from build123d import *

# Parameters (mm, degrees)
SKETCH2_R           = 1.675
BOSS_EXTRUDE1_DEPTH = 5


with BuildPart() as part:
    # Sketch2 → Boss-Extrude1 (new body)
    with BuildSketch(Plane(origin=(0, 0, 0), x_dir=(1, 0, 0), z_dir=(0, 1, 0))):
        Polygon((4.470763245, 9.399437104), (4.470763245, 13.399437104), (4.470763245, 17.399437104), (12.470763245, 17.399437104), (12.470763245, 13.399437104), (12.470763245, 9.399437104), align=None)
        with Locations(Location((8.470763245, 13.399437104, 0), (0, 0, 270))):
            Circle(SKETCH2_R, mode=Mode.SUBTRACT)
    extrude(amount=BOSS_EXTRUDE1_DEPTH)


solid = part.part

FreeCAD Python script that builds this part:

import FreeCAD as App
import Part
import Sketcher
from FreeCAD import Vector


def add_polygon(sketch, points):
    """Adds a closed chain of lines whose ends are joined by coincident constraints."""
    first, n = sketch.GeometryCount, len(points)
    for a, b in zip(points, points[1:] + points[:1]):
        sketch.addGeometry(Part.LineSegment(App.Vector(*a, 0), App.Vector(*b, 0)), False)
    for i in range(n):
        sketch.addConstraint(Sketcher.Constraint("Coincident", first + i, 2, first + (i + 1) % n, 1))

doc = App.newDocument("Part")
params = doc.addObject("Spreadsheet::Sheet", "Params")
for row, (alias, value) in enumerate([
    ("sketch1_diameter", "3.35 mm"),
    ("sketch1_width", "8 mm"),
    ("pad1_length", "5 mm"),
], start=1):
    params.set(f"A{row}", alias)
    params.set(f"B{row}", "=" + value)
    params.setAlias(f"B{row}", alias)

body = doc.addObject("PartDesign::Body", "Body")

# Sketch on XZ plane
sketch1 = body.newObject("Sketcher::SketchObject", "Sketch")
sketch1.AttachmentSupport = (doc.getObject("XZ_Plane"), [""])
sketch1.MapMode = "FlatFace"
add_polygon(sketch1, [(4.5, -17.4), (4.5, -9.4), (12.5, -9.4), (12.5, -17.4)])  # lines 0-3
sketch1.addGeometry(Part.Circle(Vector(8.5, -13.4, 0), Vector(0, 0, 1), 1.7), False)  # 4
sketch1.addConstraint(Sketcher.Constraint("Vertical", 0))
sketch1.addConstraint(Sketcher.Constraint("Horizontal", 1))
sketch1.addConstraint(Sketcher.Constraint("Vertical", 2))
sketch1.addConstraint(Sketcher.Constraint("Horizontal", 3))
sketch1.addConstraint(Sketcher.Constraint("Equal", 3, 0))
sketch1.addConstraint(Sketcher.Constraint("Diameter", 4, 3.35))
sketch1.addConstraint(Sketcher.Constraint("DistanceX", 1, 1, 1, 2, 8.0))
sketch1.addConstraint(Sketcher.Constraint("DistanceX", 0, 2, 4, 3, 4.0))
sketch1.addConstraint(Sketcher.Constraint("DistanceY", 4, 3, 0, 2, 4.0))
sketch1.addConstraint(Sketcher.Constraint("DistanceX", -1, 1, 4, 3, 8.470763))
sketch1.addConstraint(Sketcher.Constraint("DistanceY", 4, 3, -1, 1, 13.399437))
sketch1.setExpression("Constraints[9]", "Params.sketch1_diameter")
sketch1.setExpression("Constraints[10]", "Params.sketch1_width")
pad1 = body.newObject("PartDesign::Pad", "Pad")
pad1.Profile = sketch1
pad1.setExpression("Length", "Params.pad1_length")
pad1.Reversed = True

doc.recompute()
